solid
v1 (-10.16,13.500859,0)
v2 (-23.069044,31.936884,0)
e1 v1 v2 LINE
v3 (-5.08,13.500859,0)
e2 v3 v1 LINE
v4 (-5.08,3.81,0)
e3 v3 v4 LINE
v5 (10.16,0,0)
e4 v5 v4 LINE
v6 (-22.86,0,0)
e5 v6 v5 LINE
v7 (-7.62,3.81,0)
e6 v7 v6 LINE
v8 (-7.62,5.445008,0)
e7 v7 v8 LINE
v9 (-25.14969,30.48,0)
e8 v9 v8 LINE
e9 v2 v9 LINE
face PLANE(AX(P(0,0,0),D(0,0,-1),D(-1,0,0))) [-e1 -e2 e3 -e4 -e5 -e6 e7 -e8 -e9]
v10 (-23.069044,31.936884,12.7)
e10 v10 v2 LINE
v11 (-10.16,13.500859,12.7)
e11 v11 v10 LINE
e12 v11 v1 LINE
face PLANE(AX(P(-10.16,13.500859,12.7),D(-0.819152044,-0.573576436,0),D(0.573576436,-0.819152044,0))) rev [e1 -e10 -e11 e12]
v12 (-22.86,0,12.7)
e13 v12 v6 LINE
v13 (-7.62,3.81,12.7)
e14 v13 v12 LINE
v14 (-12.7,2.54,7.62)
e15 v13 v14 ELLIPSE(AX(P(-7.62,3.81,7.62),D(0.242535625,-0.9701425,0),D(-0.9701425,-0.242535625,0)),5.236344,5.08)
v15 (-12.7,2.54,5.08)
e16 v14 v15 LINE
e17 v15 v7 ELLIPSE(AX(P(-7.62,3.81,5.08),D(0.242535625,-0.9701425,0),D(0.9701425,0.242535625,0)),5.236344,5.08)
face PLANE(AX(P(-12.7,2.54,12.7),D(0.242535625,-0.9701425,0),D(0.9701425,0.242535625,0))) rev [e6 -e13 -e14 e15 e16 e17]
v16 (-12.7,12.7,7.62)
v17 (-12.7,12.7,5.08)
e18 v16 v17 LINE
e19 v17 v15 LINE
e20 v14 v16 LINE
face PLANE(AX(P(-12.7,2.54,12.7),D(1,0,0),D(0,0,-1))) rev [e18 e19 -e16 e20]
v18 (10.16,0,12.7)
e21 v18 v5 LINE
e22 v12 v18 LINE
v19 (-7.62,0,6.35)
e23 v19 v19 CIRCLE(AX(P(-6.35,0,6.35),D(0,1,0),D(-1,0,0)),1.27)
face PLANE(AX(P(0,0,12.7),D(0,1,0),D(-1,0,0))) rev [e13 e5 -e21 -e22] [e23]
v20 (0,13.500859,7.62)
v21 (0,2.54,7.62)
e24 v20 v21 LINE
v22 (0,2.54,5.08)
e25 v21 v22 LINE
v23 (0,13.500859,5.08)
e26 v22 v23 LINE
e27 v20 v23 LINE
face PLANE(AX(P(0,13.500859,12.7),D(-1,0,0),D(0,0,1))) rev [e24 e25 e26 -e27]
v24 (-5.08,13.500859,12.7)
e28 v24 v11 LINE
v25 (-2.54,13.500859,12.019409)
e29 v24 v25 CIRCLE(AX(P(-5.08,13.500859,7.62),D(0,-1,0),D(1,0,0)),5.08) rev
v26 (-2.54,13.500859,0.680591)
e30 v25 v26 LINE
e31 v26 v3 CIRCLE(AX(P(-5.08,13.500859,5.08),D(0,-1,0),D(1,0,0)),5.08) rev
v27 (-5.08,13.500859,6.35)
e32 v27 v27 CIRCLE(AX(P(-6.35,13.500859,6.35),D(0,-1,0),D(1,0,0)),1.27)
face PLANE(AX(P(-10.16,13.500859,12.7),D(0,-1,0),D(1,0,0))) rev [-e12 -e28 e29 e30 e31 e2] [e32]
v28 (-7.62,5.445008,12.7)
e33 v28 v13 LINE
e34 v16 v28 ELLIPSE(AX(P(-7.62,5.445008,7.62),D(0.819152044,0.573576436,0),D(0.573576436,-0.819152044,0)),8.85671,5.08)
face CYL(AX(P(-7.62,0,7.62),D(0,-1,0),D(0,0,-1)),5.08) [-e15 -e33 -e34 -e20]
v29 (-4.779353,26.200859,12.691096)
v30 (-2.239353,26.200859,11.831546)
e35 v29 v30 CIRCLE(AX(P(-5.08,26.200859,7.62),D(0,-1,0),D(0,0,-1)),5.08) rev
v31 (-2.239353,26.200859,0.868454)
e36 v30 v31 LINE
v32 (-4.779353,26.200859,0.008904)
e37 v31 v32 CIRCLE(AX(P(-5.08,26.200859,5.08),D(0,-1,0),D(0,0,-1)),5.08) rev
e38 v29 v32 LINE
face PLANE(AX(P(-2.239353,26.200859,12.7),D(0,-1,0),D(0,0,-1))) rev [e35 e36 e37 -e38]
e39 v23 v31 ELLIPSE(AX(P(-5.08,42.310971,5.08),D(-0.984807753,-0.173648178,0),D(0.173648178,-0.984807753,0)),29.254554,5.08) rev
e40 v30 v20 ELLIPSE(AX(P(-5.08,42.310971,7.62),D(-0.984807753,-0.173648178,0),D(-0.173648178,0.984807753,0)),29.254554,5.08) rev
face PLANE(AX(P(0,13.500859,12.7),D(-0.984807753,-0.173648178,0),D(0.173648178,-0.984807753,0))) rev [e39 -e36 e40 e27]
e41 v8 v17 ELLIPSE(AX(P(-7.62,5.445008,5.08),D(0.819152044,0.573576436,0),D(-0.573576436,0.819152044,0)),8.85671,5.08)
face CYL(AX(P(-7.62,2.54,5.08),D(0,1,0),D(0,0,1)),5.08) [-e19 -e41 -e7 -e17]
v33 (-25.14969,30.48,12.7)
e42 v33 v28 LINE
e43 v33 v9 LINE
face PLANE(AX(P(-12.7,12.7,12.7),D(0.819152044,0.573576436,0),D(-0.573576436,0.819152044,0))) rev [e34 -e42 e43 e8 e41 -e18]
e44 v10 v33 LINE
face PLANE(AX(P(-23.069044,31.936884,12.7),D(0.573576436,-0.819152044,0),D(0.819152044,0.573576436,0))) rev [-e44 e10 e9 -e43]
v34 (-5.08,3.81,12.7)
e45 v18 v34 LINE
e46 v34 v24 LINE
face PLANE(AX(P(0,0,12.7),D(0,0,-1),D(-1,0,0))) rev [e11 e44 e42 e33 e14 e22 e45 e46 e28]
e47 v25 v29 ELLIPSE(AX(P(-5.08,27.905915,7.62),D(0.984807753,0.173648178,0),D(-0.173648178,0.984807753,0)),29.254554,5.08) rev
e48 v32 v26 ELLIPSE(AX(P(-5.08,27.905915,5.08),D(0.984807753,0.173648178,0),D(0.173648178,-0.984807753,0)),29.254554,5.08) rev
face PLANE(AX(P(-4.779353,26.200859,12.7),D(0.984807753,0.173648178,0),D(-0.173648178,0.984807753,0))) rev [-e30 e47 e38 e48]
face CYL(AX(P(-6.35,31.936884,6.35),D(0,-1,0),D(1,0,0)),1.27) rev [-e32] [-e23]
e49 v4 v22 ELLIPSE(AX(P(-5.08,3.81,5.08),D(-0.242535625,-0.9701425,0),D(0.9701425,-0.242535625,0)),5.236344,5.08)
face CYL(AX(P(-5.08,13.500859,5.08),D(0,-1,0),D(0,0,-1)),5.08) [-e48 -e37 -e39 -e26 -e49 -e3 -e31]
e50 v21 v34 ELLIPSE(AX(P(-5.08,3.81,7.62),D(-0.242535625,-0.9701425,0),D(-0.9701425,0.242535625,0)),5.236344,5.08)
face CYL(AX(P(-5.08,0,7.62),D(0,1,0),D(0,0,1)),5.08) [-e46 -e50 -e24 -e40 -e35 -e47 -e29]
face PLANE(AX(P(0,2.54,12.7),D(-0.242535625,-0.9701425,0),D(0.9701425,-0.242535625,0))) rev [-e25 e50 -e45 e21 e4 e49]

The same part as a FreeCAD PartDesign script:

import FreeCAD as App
import Part
import Sketcher
from FreeCAD import Vector
Q = App.Units.Quantity


def edges_at(feature, points):
    """Names of the edges that pass closest to the given points."""
    edges = feature.Shape.Edges
    near = lambda p: min(range(len(edges)), key=lambda i: edges[i].distToShape(Part.Vertex(*p))[0])
    return sorted({f"Edge{near(p) + 1}" for p in points})

doc = App.newDocument("Part")
params = doc.addObject("Spreadsheet::Sheet", "Params")
for row, (alias, value) in enumerate([
    ("sketch1_width", "0.3 in"),
    ("sketch1_width2", "1.3 in"),
    ("sketch1_width3", "0.1 in"),
    ("sketch1_height", "0.4 in"),
    ("sketch1_length", "0.1 in"),
    ("pad1_length", "0.5 in"),
    ("fillet_radius", "0.2 in"),
    ("sketch2_diameter", "0.1 in"),
], start=1):
    params.set(f"A{row}", alias)
    params.set(f"B{row}", "=" + value)
    params.setAlias(f"B{row}", alias)

body = doc.addObject("PartDesign::Body", "Body")

# Sketch on XY plane
sketch1 = body.newObject("Sketcher::SketchObject", "Sketch")
sketch1.AttachmentSupport = (doc.getObject("XY_Plane"), [""])
sketch1.MapMode = "FlatFace"
sketch1.addGeometry([
    Part.LineSegment(Vector(-2.5, 13.5, 0), Vector(-10.2, 13.5, 0)),  # 0
    Part.LineSegment(Vector(-10.2, 13.5, 0), Vector(-23.1, 31.9, 0)),  # 1
    Part.LineSegment(Vector(-23.1, 31.9, 0), Vector(-25.1, 30.5, 0)),  # 2
    Part.LineSegment(Vector(-25.1, 30.5, 0), Vector(-12.7, 12.7, 0)),  # 3
    Part.LineSegment(Vector(-12.7, 12.7, 0), Vector(-12.7, 2.5, 0)),  # 4
    Part.LineSegment(Vector(-12.7, 2.5, 0), Vector(-22.9, 0, 0)),  # 5
    Part.LineSegment(Vector(-22.9, 0, 0), Vector(10.2, 0, 0)),  # 6
    Part.LineSegment(Vector(10.2, 0, 0), Vector(0, 2.5, 0)),  # 7
    Part.LineSegment(Vector(0, 2.5, 0), Vector(0, 13.5, 0)),  # 8
    Part.LineSegment(Vector(0, 13.5, 0), Vector(-2.2, 26.2, 0)),  # 9
    Part.LineSegment(Vector(-2.2, 26.2, 0), Vector(-4.8, 26.2, 0)),  # 10
    Part.LineSegment(Vector(-4.8, 26.2, 0), Vector(-2.5, 13.5, 0)),  # 11
], False)
sketch1.addConstraint([
    Sketcher.Constraint("Coincident", 0, 2, 1, 1),
    Sketcher.Constraint("Coincident", 1, 2, 2, 1),
    Sketcher.Constraint("Coincident", 2, 2, 3, 1),
    Sketcher.Constraint("Coincident", 3, 2, 4, 1),
    Sketcher.Constraint("Coincident", 4, 2, 5, 1),
    Sketcher.Constraint("Coincident", 5, 2, 6, 1),
    Sketcher.Constraint("Coincident", 6, 2, 7, 1),
    Sketcher.Constraint("Coincident", 7, 2, 8, 1),
    Sketcher.Constraint("Coincident", 8, 2, 9, 1),
    Sketcher.Constraint("Coincident", 9, 2, 10, 1),
    Sketcher.Constraint("Coincident", 10, 2, 11, 1),
    Sketcher.Constraint("Coincident", 11, 2, 0, 1),
    Sketcher.Constraint("Horizontal", 0),
    Sketcher.Constraint("Vertical", 4),
    Sketcher.Constraint("Horizontal", 6),
    Sketcher.Constraint("Vertical", 8),
    Sketcher.Constraint("Horizontal", 10),
    Sketcher.Constraint("PointOnObject", 5, 2, -1),
    Sketcher.Constraint("PointOnObject", 7, 2, -2),
    Sketcher.Constraint("Perpendicular", 1, 2),
    Sketcher.Constraint("Perpendicular", 2, 3),
    Sketcher.Constraint("Parallel", 9, 11),
    Sketcher.Constraint("Horizontal", 4, 2, 7, 2),
    Sketcher.Constraint("Horizontal", 0, 2, 8, 2),
    Sketcher.Constraint("Equal", 5, 7),
    Sketcher.Constraint("DistanceX", 0, 2, 0, 1, Q("0.3 in")),
    Sketcher.Constraint("DistanceX", 6, 1, 6, 2, Q("1.3 in")),
    Sketcher.Constraint("DistanceX", 10, 2, 10, 1, Q("0.1 in")),
    Sketcher.Constraint("DistanceY", 4, 2, 4, 1, Q("0.4 in")),
    Sketcher.Constraint("Angle", 1, Q("125 deg")),
    Sketcher.Constraint("Angle", 9, Q("100 deg")),
    Sketcher.Constraint("Distance", 2, Q("0.1 in")),
    Sketcher.Constraint("DistanceY", -1, 1, 2, 2, Q("1.2 in")),
    Sketcher.Constraint("DistanceX", 3, 2, -1, 1, Q("0.5 in")),
    Sketcher.Constraint("DistanceY", -1, 1, 3, 2, Q("0.5 in")),
    Sketcher.Constraint("DistanceY", 8, 2, 9, 2, Q("0.5 in")),
])
sketch1.setExpression("Constraints[25]", "Params.sketch1_width")
sketch1.setExpression("Constraints[26]", "Params.sketch1_width2")
sketch1.setExpression("Constraints[27]", "Params.sketch1_width3")
sketch1.setExpression("Constraints[28]", "Params.sketch1_height")
sketch1.setExpression("Constraints[31]", "Params.sketch1_length")
pad1 = body.newObject("PartDesign::Pad", "Pad")
pad1.Profile = sketch1
pad1.setExpression("Length", "Params.pad1_length")
doc.recompute()

fillet = body.newObject("PartDesign::Fillet", "Fillet")
fillet.Base = (pad1, edges_at(pad1, [
    (-12.7, 7.62, 12.7),
    (-12.7, 7.62, 0),
    (0, 8.02, 0),
    (0, 8.02, 12.7),
]))
fillet.setExpression("Radius", "Params.fillet_radius")

# Sketch on XZ plane
sketch2 = body.newObject("Sketcher::SketchObject", "Sketch001")
sketch2.AttachmentSupport = (doc.getObject("XZ_Plane"), [""])
sketch2.MapMode = "FlatFace"
sketch2.addGeometry(Part.Circle(Vector(-6.3, 6.3, 0), Vector(0, 0, 1), 1.3), False)
sketch2.addConstraint([
    Sketcher.Constraint("Diameter", 0, Q("0.1 in")),
    Sketcher.Constraint("DistanceX", 0, 3, -1, 1, Q("0.25 in")),
    Sketcher.Constraint("DistanceY", -1, 1, 0, 3, Q("0.25 in")),
])
sketch2.setExpression("Constraints[0]", "Params.sketch2_diameter")
pocket1 = body.newObject("PartDesign::Pocket", "Pocket")
pocket1.Profile = sketch2
pocket1.Type = "ThroughAll"
pocket1.Midplane = True

doc.recompute()
